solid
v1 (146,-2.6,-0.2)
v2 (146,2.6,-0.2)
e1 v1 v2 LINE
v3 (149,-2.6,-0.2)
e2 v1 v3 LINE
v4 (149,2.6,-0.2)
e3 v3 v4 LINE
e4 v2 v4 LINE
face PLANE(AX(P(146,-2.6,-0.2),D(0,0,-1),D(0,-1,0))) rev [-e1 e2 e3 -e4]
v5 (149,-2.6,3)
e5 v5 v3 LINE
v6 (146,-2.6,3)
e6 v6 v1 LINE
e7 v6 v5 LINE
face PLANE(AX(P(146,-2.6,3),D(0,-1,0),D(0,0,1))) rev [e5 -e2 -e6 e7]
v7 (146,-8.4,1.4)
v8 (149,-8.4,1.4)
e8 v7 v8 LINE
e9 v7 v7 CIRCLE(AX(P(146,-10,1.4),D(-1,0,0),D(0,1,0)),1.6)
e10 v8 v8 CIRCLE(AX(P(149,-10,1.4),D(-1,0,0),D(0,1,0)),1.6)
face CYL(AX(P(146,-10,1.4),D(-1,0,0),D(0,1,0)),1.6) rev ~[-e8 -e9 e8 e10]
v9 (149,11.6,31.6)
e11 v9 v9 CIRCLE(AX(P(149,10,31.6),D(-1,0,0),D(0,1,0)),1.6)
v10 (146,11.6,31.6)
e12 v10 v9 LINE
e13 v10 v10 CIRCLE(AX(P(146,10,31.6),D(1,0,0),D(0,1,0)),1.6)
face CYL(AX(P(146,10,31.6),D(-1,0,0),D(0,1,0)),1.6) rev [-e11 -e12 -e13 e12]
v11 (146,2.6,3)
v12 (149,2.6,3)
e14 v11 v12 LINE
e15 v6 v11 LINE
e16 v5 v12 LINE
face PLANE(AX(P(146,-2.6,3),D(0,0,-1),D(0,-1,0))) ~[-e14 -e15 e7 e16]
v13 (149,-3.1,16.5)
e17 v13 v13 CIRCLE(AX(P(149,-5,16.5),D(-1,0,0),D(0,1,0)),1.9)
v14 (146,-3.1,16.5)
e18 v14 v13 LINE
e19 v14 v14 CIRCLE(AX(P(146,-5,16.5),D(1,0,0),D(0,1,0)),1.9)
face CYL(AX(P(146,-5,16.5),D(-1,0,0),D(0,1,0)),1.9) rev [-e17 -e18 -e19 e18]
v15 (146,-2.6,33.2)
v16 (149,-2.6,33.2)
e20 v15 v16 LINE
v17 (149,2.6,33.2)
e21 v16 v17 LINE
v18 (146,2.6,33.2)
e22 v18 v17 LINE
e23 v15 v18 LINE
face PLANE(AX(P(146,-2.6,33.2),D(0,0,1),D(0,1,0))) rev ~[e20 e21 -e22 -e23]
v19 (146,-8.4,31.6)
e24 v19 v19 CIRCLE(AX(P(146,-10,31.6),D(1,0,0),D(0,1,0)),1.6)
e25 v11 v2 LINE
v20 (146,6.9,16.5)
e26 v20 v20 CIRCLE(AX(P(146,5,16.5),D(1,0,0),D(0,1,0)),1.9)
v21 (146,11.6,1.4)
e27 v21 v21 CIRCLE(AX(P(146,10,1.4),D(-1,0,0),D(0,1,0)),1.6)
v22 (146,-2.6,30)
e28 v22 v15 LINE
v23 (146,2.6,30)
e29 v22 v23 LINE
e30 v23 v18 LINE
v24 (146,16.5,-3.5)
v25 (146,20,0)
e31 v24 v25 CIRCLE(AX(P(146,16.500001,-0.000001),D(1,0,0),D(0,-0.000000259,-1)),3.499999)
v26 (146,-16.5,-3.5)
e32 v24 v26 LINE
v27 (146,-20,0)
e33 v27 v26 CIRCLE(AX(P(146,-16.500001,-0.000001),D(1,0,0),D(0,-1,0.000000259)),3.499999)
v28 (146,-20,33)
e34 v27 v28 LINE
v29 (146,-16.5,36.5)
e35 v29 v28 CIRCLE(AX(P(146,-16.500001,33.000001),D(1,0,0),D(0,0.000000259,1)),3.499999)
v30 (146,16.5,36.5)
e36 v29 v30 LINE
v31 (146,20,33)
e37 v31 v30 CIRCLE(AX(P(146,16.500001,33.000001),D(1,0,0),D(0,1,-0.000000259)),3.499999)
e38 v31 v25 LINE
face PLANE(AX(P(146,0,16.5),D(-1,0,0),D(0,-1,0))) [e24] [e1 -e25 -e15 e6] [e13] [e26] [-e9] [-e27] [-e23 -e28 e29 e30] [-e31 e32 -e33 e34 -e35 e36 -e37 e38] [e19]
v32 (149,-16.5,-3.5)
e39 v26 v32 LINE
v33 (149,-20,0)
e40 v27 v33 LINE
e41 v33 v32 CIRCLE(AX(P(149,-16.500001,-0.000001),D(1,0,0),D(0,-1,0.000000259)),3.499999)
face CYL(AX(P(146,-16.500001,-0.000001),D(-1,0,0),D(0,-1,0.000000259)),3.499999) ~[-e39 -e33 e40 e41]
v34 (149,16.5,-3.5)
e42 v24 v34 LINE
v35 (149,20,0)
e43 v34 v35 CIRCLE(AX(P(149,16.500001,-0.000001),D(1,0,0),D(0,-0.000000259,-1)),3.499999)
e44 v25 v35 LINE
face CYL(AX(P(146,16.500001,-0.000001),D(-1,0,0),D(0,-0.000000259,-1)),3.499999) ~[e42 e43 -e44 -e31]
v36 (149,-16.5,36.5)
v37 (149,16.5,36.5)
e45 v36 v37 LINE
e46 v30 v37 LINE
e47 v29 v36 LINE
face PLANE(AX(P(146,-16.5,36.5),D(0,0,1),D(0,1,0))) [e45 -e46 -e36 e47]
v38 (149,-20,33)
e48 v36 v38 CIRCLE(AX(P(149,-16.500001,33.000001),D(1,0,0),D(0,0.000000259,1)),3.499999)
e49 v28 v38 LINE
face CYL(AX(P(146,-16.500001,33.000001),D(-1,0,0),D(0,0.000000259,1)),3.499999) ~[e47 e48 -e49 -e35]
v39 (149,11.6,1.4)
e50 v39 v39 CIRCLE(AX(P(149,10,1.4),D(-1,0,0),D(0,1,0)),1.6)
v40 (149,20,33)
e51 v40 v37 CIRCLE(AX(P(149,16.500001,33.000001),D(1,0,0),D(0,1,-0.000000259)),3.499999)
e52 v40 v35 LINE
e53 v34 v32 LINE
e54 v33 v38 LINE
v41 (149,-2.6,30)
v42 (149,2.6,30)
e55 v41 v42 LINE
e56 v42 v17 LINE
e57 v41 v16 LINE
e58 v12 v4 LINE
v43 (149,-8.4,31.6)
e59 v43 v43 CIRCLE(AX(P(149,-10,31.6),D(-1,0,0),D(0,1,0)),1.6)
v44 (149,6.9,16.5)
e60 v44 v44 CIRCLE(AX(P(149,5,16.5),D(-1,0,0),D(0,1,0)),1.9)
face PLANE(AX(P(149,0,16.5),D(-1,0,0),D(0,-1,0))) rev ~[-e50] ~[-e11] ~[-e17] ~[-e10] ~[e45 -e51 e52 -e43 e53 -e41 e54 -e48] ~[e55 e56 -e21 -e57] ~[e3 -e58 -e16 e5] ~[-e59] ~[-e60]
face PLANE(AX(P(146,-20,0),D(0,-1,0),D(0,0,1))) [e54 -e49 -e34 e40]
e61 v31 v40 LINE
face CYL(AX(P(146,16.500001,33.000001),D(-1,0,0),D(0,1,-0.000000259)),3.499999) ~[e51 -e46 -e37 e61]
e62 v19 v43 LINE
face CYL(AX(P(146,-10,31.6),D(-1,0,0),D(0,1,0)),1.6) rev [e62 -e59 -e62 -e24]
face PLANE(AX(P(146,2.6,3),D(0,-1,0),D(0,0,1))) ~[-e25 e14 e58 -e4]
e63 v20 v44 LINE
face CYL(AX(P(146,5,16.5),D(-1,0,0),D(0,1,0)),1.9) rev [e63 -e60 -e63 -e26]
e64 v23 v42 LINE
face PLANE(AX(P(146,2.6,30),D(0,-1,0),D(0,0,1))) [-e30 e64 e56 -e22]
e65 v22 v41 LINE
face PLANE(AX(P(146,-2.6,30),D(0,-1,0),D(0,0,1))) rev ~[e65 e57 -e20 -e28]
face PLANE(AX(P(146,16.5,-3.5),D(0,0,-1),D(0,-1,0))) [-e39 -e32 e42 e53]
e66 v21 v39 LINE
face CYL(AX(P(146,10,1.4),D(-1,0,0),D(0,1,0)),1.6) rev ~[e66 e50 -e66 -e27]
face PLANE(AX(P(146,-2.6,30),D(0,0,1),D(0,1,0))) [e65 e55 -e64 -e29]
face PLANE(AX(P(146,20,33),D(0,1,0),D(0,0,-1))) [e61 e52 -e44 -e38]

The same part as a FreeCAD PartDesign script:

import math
import FreeCAD as App
import Part
import Sketcher


def add_polygon(sketch, points):
    """Adds a closed chain of lines whose ends are joined by coincident constraints."""
    first, n = sketch.GeometryCount, len(points)
    for a, b in zip(points, points[1:] + points[:1]):
        sketch.addGeometry(Part.LineSegment(App.Vector(*a, 0), App.Vector(*b, 0)), False)
    for i in range(n):
        sketch.addConstraint(Sketcher.Constraint("Coincident", first + i, 2, first + (i + 1) % n, 1))

doc = App.newDocument("Part")
params = doc.addObject("Spreadsheet::Sheet", "Params")
for row, (alias, value) in enumerate([
    ("sketch1_radius", "3.499999 mm"),
    ("sketch1_width", "33 mm"),
    ("pad1_length", "3 mm"),
    ("sketch2_diameter", "3.2 mm"),
    ("sketch2_width", "5.2 mm"),
    ("sketch2_height", "3.2 mm"),
    ("sketch3_diameter", "3.8 mm"),
], start=1):
    params.set(f"A{row}", alias)
    params.set(f"B{row}", "=" + value)
    params.setAlias(f"B{row}", alias)

body = doc.addObject("PartDesign::Body", "Body")

sketch1 = body.newObject("Sketcher::SketchObject", "Sketch")
sketch1.AttachmentSupport = (doc.getObject("YZ_Plane"), [""])
sketch1.MapMode = "FlatFace"
sketch1.addGeometry([
    Part.LineSegment(App.Vector(16.5, 20, 0), App.Vector(-16.5, 20, 0)),
    Part.ArcOfCircle(Part.Circle(App.Vector(-16.500001, 16.500001, 0), App.Vector(0, 0, 1), 3.499999), math.radians(89.999985), math.radians(180.000015)),
    Part.LineSegment(App.Vector(-20, 16.5, 0), App.Vector(-20, -16.5, 0)),
    Part.ArcOfCircle(Part.Circle(App.Vector(-16.500001, -16.500001, 0), App.Vector(0, 0, 1), 3.499999), math.radians(179.999985), math.radians(270.000015)),
    Part.LineSegment(App.Vector(-16.5, -20, 0), App.Vector(16.5, -20, 0)),
    Part.ArcOfCircle(Part.Circle(App.Vector(16.500001, -16.500001, 0), App.Vector(0, 0, 1), 3.499999), math.radians(-90.000015), math.radians(0.000015)),
    Part.LineSegment(App.Vector(20, -16.5, 0), App.Vector(20, 16.5, 0)),
    Part.ArcOfCircle(Part.Circle(App.Vector(16.500001, 16.500001, 0), App.Vector(0, 0, 1), 3.499999), math.radians(-0.000015), math.radians(90.000015)),
], False)
sketch1.addConstraint([
    Sketcher.Constraint("Tangent", 0, 2, 1, 1),
    Sketcher.Constraint("Tangent", 1, 2, 2, 1),
    Sketcher.Constraint("Tangent", 2, 2, 3, 1),
    Sketcher.Constraint("Tangent", 3, 2, 4, 1),
    Sketcher.Constraint("Tangent", 4, 2, 5, 1),
    Sketcher.Constraint("Tangent", 5, 2, 6, 1),
    Sketcher.Constraint("Tangent", 6, 2, 7, 1),
    Sketcher.Constraint("Tangent", 7, 2, 0, 1),
    Sketcher.Constraint("Horizontal", 0),
    Sketcher.Constraint("Vertical", 2),
    Sketcher.Constraint("Horizontal", 4),
    Sketcher.Constraint("Vertical", 6),
    Sketcher.Constraint("Equal", 1, 3),
    Sketcher.Constraint("Equal", 3, 5),
    Sketcher.Constraint("Equal", 5, 7),
    Sketcher.Constraint("Symmetric", 1, 3, 5, 3, -1, 1),
    Sketcher.Constraint("Equal", 4, 2),
    Sketcher.Constraint("Radius", 1, 3.499999),
    Sketcher.Constraint("DistanceX", 0, 2, 0, 1, 33.0),
])
sketch1.setExpression("Constraints[17]", "Params.sketch1_radius")
sketch1.setExpression("Constraints[18]", "Params.sketch1_width")
pad1 = body.newObject("PartDesign::Pad", "Pad")
pad1.Profile = sketch1
pad1.setExpression("Length", "Params.pad1_length")

sketch2 = body.newObject("Sketcher::SketchObject", "Sketch001")
sketch2.AttachmentSupport = (doc.getObject("YZ_Plane"), [""])
sketch2.MapMode = "FlatFace"
sketch2.addGeometry(Part.Circle(App.Vector(-10, 15.1, 0), App.Vector(0, 0, 1), 1.6), False)
sketch2.addGeometry(Part.Circle(App.Vector(10, 15.1, 0), App.Vector(0, 0, 1), 1.6), False)
add_polygon(sketch2, [(-2.6, 16.7), (-2.6, 13.5), (2.6, 13.5), (2.6, 16.7)])
sketch2.addConstraint([
    Sketcher.Constraint("Vertical", 2),
    Sketcher.Constraint("Horizontal", 3),
    Sketcher.Constraint("Vertical", 4),
    Sketcher.Constraint("Horizontal", 5),
    Sketcher.Constraint("Equal", 0, 1),
    Sketcher.Constraint("Symmetric", 0, 3, 1, 3, -2),
    Sketcher.Constraint("Diameter", 0, 3.2),
    Sketcher.Constraint("DistanceX", 3, 1, 3, 2, 5.2),
    Sketcher.Constraint("DistanceY", 2, 2, 2, 1, 3.2),
    Sketcher.Constraint("DistanceX", 0, 3, -1, 1, 10.0),
    Sketcher.Constraint("DistanceY", -1, 1, 0, 3, 15.1),
    Sketcher.Constraint("DistanceX", 2, 2, -1, 1, 2.6),
    Sketcher.Constraint("DistanceY", -1, 1, 2, 2, 13.5),
])
sketch2.setExpression("Constraints[10]", "Params.sketch2_diameter")
sketch2.setExpression("Constraints[11]", "Params.sketch2_width")
sketch2.setExpression("Constraints[12]", "Params.sketch2_height")
pocket1 = body.newObject("PartDesign::Pocket", "Pocket")
pocket1.Profile = sketch2
pocket1.Type = "ThroughAll"
pocket1.Reversed = True
doc.recompute()

mirrored = body.newObject("PartDesign::Mirrored", "Mirrored")
mirrored.Originals = [pocket1]
mirrored.MirrorPlane = (doc.getObject("XY_Plane"), [""])
body.Tip = mirrored

sketch3 = body.newObject("Sketcher::SketchObject", "Sketch002")
sketch3.AttachmentSupport = (doc.getObject("YZ_Plane"), [""])
sketch3.MapMode = "FlatFace"
sketch3.addGeometry([
    Part.Circle(App.Vector(-5, 0, 0), App.Vector(0, 0, 1), 1.9),
    Part.Circle(App.Vector(5, 0, 0), App.Vector(0, 0, 1), 1.9),
], False)
sketch3.addConstraint([
    Sketcher.Constraint("Equal", 0, 1),
    Sketcher.Constraint("Symmetric", 0, 3, 1, 3, -1, 1),
    Sketcher.Constraint("PointOnObject", 0, 3, -1),
    Sketcher.Constraint("Diameter", 0, 3.8),
    Sketcher.Constraint("DistanceX", 0, 3, -1, 1, 5.0),
])
sketch3.setExpression("Constraints[3]", "Params.sketch3_diameter")
pocket2 = body.newObject("PartDesign::Pocket", "Pocket001")
pocket2.Profile = sketch3
pocket2.Type = "ThroughAll"
pocket2.Reversed = True
body2 = doc.addObject("PartDesign::Body", "Body001")
doc.recompute()

body.Placement = App.Placement(App.Vector(146, 0, 16.5), App.Rotation(App.Vector(0, 0, 1), 0))
boolean = body2.newObject("PartDesign::Boolean", "Boolean")
boolean.Type = "Fuse"
boolean.addObjects([body])

doc.recompute()
